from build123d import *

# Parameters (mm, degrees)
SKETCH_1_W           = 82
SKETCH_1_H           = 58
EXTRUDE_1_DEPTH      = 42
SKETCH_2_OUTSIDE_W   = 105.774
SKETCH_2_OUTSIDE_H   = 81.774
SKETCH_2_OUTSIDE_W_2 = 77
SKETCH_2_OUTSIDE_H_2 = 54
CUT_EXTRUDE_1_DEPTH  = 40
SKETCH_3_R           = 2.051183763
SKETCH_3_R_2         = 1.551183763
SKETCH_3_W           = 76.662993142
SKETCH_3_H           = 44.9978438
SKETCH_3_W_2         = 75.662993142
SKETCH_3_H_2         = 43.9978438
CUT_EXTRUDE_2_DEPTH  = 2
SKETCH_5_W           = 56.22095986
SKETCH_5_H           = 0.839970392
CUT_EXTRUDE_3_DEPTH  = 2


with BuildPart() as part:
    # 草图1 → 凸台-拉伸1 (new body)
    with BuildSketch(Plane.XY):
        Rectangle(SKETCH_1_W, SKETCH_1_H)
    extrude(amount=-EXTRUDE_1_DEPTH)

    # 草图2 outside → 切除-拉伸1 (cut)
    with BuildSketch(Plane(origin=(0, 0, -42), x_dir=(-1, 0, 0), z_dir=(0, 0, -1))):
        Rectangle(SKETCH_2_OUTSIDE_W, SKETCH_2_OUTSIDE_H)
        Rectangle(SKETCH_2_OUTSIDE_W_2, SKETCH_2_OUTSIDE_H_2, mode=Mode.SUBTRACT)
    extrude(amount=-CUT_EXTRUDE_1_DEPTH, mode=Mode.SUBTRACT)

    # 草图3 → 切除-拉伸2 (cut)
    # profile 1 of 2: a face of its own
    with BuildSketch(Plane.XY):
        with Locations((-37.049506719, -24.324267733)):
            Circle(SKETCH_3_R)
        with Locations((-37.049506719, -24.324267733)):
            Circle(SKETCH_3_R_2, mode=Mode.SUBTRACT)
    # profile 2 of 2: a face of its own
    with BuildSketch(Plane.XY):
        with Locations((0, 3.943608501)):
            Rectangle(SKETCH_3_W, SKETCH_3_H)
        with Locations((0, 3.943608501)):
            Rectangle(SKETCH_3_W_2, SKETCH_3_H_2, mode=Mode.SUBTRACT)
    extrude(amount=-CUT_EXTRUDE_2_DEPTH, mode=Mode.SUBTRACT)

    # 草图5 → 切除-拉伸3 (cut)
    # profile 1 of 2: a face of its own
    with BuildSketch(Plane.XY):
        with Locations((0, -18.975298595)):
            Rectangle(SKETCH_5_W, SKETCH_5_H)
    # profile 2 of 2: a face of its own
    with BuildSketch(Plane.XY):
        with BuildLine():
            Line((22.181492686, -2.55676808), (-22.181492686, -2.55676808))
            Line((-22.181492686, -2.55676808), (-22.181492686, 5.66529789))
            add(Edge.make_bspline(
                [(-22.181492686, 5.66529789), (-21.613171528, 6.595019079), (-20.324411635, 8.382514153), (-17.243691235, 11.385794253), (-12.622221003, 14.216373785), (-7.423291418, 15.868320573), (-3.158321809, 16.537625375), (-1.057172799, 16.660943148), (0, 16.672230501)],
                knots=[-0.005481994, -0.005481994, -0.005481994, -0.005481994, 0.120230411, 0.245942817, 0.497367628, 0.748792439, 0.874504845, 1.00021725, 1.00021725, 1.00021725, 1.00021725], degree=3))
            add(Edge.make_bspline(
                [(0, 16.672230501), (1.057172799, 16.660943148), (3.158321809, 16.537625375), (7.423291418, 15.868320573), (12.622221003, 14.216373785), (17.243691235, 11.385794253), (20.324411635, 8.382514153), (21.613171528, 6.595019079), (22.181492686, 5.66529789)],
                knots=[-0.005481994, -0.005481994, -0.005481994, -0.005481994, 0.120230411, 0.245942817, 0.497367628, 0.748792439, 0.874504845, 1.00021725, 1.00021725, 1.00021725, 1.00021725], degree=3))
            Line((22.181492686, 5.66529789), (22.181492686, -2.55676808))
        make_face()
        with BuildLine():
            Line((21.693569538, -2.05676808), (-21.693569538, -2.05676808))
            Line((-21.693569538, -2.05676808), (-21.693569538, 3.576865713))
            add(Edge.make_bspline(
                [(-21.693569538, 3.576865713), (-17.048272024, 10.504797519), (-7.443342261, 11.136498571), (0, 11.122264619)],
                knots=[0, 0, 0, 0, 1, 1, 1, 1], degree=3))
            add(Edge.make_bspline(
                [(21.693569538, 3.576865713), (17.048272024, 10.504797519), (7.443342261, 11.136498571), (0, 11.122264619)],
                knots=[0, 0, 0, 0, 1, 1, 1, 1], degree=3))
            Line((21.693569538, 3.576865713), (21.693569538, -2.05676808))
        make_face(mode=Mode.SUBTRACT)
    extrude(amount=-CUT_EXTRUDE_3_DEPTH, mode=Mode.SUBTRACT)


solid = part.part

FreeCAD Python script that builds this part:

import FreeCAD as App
import Part
import Sketcher

V = App.Vector

doc = App.newDocument("Part")
params = doc.addObject("Spreadsheet::Sheet", "Params")
for row, (alias, value) in enumerate([
    ("sketch1_width", "82 mm"),
    ("sketch1_height", "58 mm"),
    ("pad1_length", "42 mm"),
    ("sketch2_width", "77 mm"),
    ("sketch2_height", "54 mm"),
    ("pocket1_length", "40 mm"),
    ("pocket2_length", "2 mm"),
    ("pocket3_length", "2 mm"),
], start=1):
    params.set(f"A{row}", alias)
    params.set(f"B{row}", "=" + value)
    params.setAlias(f"B{row}", alias)

body = doc.addObject("PartDesign::Body", "Body")

# Sketch on XY plane
sketch1 = doc.addObject("Sketcher::SketchObject", "Sketch")
body.addObject(sketch1)
sketch1.AttachmentSupport = (doc.XY_Plane, [""])
sketch1.MapMode = "FlatFace"
sketch1.addGeometry(Part.LineSegment(V(-41, 29, 0), V(-41, -29, 0)), False)
sketch1.addGeometry(Part.LineSegment(V(-41, -29, 0), V(41, -29, 0)), False)
sketch1.addGeometry(Part.LineSegment(V(41, -29, 0), V(41, 29, 0)), False)
sketch1.addGeometry(Part.LineSegment(V(41, 29, 0), V(-41, 29, 0)), False)
sketch1.addConstraint(Sketcher.Constraint("Coincident", 0, 2, 1, 1))
sketch1.addConstraint(Sketcher.Constraint("Coincident", 1, 2, 2, 1))
sketch1.addConstraint(Sketcher.Constraint("Coincident", 2, 2, 3, 1))
sketch1.addConstraint(Sketcher.Constraint("Coincident", 3, 2, 0, 1))
sketch1.addConstraint(Sketcher.Constraint("Vertical", 0))
sketch1.addConstraint(Sketcher.Constraint("Horizontal", 1))
sketch1.addConstraint(Sketcher.Constraint("Vertical", 2))
sketch1.addConstraint(Sketcher.Constraint("Horizontal", 3))
sketch1.addConstraint(Sketcher.Constraint("Symmetric", 0, 2, 2, 2, -1, 1))
sketch1.addConstraint(Sketcher.Constraint("DistanceX", 1, 1, 1, 2, 82.0))
sketch1.addConstraint(Sketcher.Constraint("DistanceY", 0, 2, 0, 1, 58.0))
sketch1.setExpression("Constraints[9]", "Params.sketch1_width")
sketch1.setExpression("Constraints[10]", "Params.sketch1_height")
pad1 = doc.addObject("PartDesign::Pad", "Pad")
body.addObject(pad1)
pad1.Profile = sketch1
pad1.setExpression("Length", "Params.pad1_length")
pad1.Reversed = True

# Sketch on XY plane
sketch2 = doc.addObject("Sketcher::SketchObject", "Sketch001")
body.addObject(sketch2)
sketch2.AttachmentSupport = (doc.XY_Plane, [""])
sketch2.MapMode = "FlatFace"
sketch2.AttachmentOffset = App.Placement(V(0, 0, -42), App.Rotation())
sketch2.addGeometry(Part.LineSegment(V(52.887, 40.887, 0), V(52.887, -40.887, 0)), False)
sketch2.addGeometry(Part.LineSegment(V(52.887, -40.887, 0), V(-52.887, -40.887, 0)), False)
sketch2.addGeometry(Part.LineSegment(V(-52.887, -40.887, 0), V(-52.887, 40.887, 0)), False)
sketch2.addGeometry(Part.LineSegment(V(-52.887, 40.887, 0), V(52.887, 40.887, 0)), False)
sketch2.addGeometry(Part.LineSegment(V(-38.5, -27, 0), V(38.5, -27, 0)), False)
sketch2.addGeometry(Part.LineSegment(V(38.5, -27, 0), V(38.5, 27, 0)), False)
sketch2.addGeometry(Part.LineSegment(V(38.5, 27, 0), V(-38.5, 27, 0)), False)
sketch2.addGeometry(Part.LineSegment(V(-38.5, 27, 0), V(-38.5, -27, 0)), False)
sketch2.addConstraint(Sketcher.Constraint("Coincident", 0, 2, 1, 1))
sketch2.addConstraint(Sketcher.Constraint("Coincident", 1, 2, 2, 1))
sketch2.addConstraint(Sketcher.Constraint("Coincident", 2, 2, 3, 1))
sketch2.addConstraint(Sketcher.Constraint("Coincident", 3, 2, 0, 1))
sketch2.addConstraint(Sketcher.Constraint("Coincident", 4, 2, 5, 1))
sketch2.addConstraint(Sketcher.Constraint("Coincident", 5, 2, 6, 1))
sketch2.addConstraint(Sketcher.Constraint("Coincident", 6, 2, 7, 1))
sketch2.addConstraint(Sketcher.Constraint("Coincident", 7, 2, 4, 1))
sketch2.addConstraint(Sketcher.Constraint("Vertical", 0))
sketch2.addConstraint(Sketcher.Constraint("Horizontal", 1))
sketch2.addConstraint(Sketcher.Constraint("Vertical", 2))
sketch2.addConstraint(Sketcher.Constraint("Horizontal", 3))
sketch2.addConstraint(Sketcher.Constraint("Horizontal", 4))
sketch2.addConstraint(Sketcher.Constraint("Vertical", 5))
sketch2.addConstraint(Sketcher.Constraint("Horizontal", 6))
sketch2.addConstraint(Sketcher.Constraint("Vertical", 7))
sketch2.addConstraint(Sketcher.Constraint("Symmetric", 0, 2, 2, 2, -1, 1))
sketch2.addConstraint(Sketcher.Constraint("Symmetric", 4, 2, 6, 2, -1, 1))
sketch2.addConstraint(Sketcher.Constraint("DistanceX", 4, 1, 4, 2, 77.0))
sketch2.addConstraint(Sketcher.Constraint("DistanceY", 5, 1, 5, 2, 54.0))
sketch2.addConstraint(Sketcher.Constraint("DistanceX", 1, 2, 1, 1, 105.774))
sketch2.addConstraint(Sketcher.Constraint("DistanceY", 0, 2, 0, 1, 81.774))
sketch2.setExpression("Constraints[18]", "Params.sketch2_width")
sketch2.setExpression("Constraints[19]", "Params.sketch2_height")
pocket1 = doc.addObject("PartDesign::Pocket", "Pocket")
body.addObject(pocket1)
pocket1.Profile = sketch2
pocket1.setExpression("Length", "Params.pocket1_length")
pocket1.Reversed = True

# Sketch on XY plane
sketch3 = doc.addObject("Sketcher::SketchObject", "Sketch002")
body.addObject(sketch3)
sketch3.AttachmentSupport = (doc.XY_Plane, [""])
sketch3.MapMode = "FlatFace"
sketch3.addGeometry(Part.Circle(V(-37.049507, -24.324268, 0), V(0, 0, 1), 2.051184), False)
sketch3.addGeometry(Part.Circle(V(-37.049507, -24.324268, 0), V(0, 0, 1), 1.551184), False)
sketch3.addGeometry(Part.LineSegment(V(-38.331497, 26.44253, 0), V(-38.331497, -18.555313, 0)), False)
sketch3.addGeometry(Part.LineSegment(V(-38.331497, -18.555313, 0), V(38.331497, -18.555313, 0)), False)
sketch3.addGeometry(Part.LineSegment(V(38.331497, -18.555313, 0), V(38.331497, 26.44253, 0)), False)
sketch3.addGeometry(Part.LineSegment(V(38.331497, 26.44253, 0), V(-38.331497, 26.44253, 0)), False)
sketch3.addGeometry(Part.LineSegment(V(37.831497, -18.055313, 0), V(-37.831497, -18.055313, 0)), False)
sketch3.addGeometry(Part.LineSegment(V(-37.831497, -18.055313, 0), V(-37.831497, 25.94253, 0)), False)
sketch3.addGeometry(Part.LineSegment(V(-37.831497, 25.94253, 0), V(37.831497, 25.94253, 0)), False)
sketch3.addGeometry(Part.LineSegment(V(37.831497, 25.94253, 0), V(37.831497, -18.055313, 0)), False)
sketch3.addConstraint(Sketcher.Constraint("Coincident", 2, 2, 3, 1))
sketch3.addConstraint(Sketcher.Constraint("Coincident", 3, 2, 4, 1))
sketch3.addConstraint(Sketcher.Constraint("Coincident", 4, 2, 5, 1))
sketch3.addConstraint(Sketcher.Constraint("Coincident", 5, 2, 2, 1))
sketch3.addConstraint(Sketcher.Constraint("Coincident", 6, 2, 7, 1))
sketch3.addConstraint(Sketcher.Constraint("Coincident", 7, 2, 8, 1))
sketch3.addConstraint(Sketcher.Constraint("Coincident", 8, 2, 9, 1))
sketch3.addConstraint(Sketcher.Constraint("Coincident", 9, 2, 6, 1))
sketch3.addConstraint(Sketcher.Constraint("Vertical", 2))
sketch3.addConstraint(Sketcher.Constraint("Horizontal", 3))
sketch3.addConstraint(Sketcher.Constraint("Vertical", 4))
sketch3.addConstraint(Sketcher.Constraint("Horizontal", 5))
sketch3.addConstraint(Sketcher.Constraint("Horizontal", 6))
sketch3.addConstraint(Sketcher.Constraint("Vertical", 7))
sketch3.addConstraint(Sketcher.Constraint("Horizontal", 8))
sketch3.addConstraint(Sketcher.Constraint("Vertical", 9))
sketch3.addConstraint(Sketcher.Constraint("Coincident", 1, 3, 0, 3))
sketch3.addConstraint(Sketcher.Constraint("DistanceX", 2, 2, 6, 2, 0.5))
sketch3.addConstraint(Sketcher.Constraint("DistanceY", 2, 2, 6, 2, 0.5))
sketch3.addConstraint(Sketcher.Constraint("DistanceY", 7, 2, 5, 2, 0.5))
sketch3.addConstraint(Sketcher.Constraint("DistanceX", 8, 2, 4, 2, 0.5))
sketch3.addConstraint(Sketcher.Constraint("Diameter", 0, 4.102368))
sketch3.addConstraint(Sketcher.Constraint("Diameter", 1, 3.102368))
sketch3.addConstraint(Sketcher.Constraint("DistanceY", 0, 3, 4, 2, 50.766798))
sketch3.addConstraint(Sketcher.Constraint("DistanceX", 3, 1, 3, 2, 76.662993))
sketch3.addConstraint(Sketcher.Constraint("DistanceY", 2, 2, 2, 1, 44.997844))
sketch3.addConstraint(Sketcher.Constraint("DistanceY", -1, 1, 4, 2, 26.44253))
sketch3.addConstraint(Sketcher.Constraint("DistanceX", 2, 2, 0, 3, 1.28199))
sketch3.addConstraint(Sketcher.Constraint("DistanceX", 0, 3, -1, 1, 37.049507))
pocket2 = doc.addObject("PartDesign::Pocket", "Pocket001")
body.addObject(pocket2)
pocket2.Profile = sketch3
pocket2.setExpression("Length", "Params.pocket2_length")

# Sketch on XY plane
sketch4 = doc.addObject("Sketcher::SketchObject", "Sketch003")
body.addObject(sketch4)
sketch4.AttachmentSupport = (doc.XY_Plane, [""])
sketch4.MapMode = "FlatFace"
sketch4.addGeometry(Part.LineSegment(V(-28.11048, -18.555313, 0), V(-28.11048, -19.395284, 0)), False)
sketch4.addGeometry(Part.LineSegment(V(-28.11048, -19.395284, 0), V(28.11048, -19.395284, 0)), False)
sketch4.addGeometry(Part.LineSegment(V(28.11048, -19.395284, 0), V(28.11048, -18.555313, 0)), False)
sketch4.addGeometry(Part.LineSegment(V(28.11048, -18.555313, 0), V(-28.11048, -18.555313, 0)), False)
sketch4.addGeometry(Part.LineSegment(V(-22.181493, -2.556768, 0), V(22.181493, -2.556768, 0)), False)
sketch4.addGeometry(Part.LineSegment(V(22.181493, -2.556768, 0), V(22.181493, 5.665298, 0)), False)
sketch4.addGeometry(Part.BSplineCurve([V(0, 16.672231, 0), V(1.057173, 16.660943, 0), V(3.158322, 16.537625, 0), V(7.423291, 15.868321, 0), V(12.622221, 14.216374, 0), V(17.243691, 11.385794, 0), V(20.324412, 8.382514, 0), V(21.613172, 6.595019, 0), V(22.181493, 5.665298, 0)], [4, 1, 1, 1, 1, 1, 4], [-0.005481994, 0.120230411, 0.245942817, 0.497367628, 0.748792439, 0.874504845, 1.00021725], False, 3, [1, 1, 1, 1, 1, 1, 1, 1, 1], False), False)
sketch4.addGeometry(Part.BSplineCurve([V(-22.181493, 5.665298, 0), V(-21.613172, 6.595019, 0), V(-20.324412, 8.382514, 0), V(-17.243691, 11.385794, 0), V(-12.622221, 14.216374, 0), V(-7.423291, 15.868321, 0), V(-3.158322, 16.537625, 0), V(-1.057173, 16.660943, 0), V(0, 16.672231, 0)], [4, 1, 1, 1, 1, 1, 4], [-0.005481994, 0.120230411, 0.245942817, 0.497367628, 0.748792439, 0.874504845, 1.00021725], False, 3, [1, 1, 1, 1, 1, 1, 1, 1, 1], False), False)
sketch4.addGeometry(Part.LineSegment(V(-22.181493, 5.665298, 0), V(-22.181493, -2.556768, 0)), False)
sketch4.addGeometry(Part.LineSegment(V(21.69357, -2.056768, 0), V(-21.69357, -2.056768, 0)), False)
sketch4.addGeometry(Part.LineSegment(V(-21.69357, -2.056768, 0), V(-21.69357, 3.576866, 0)), False)
sketch4.addGeometry(Part.BSplineCurve([V(-21.69357, 3.576866, 0), V(-17.048272, 10.504798, 0), V(-7.443342, 11.136499, 0), V(0, 11.122265, 0)], [4, 4], [0, 1], False, 3, [1, 1, 1, 1], False), False)
sketch4.addGeometry(Part.BSplineCurve([V(21.69357, 3.576866, 0), V(17.048272, 10.504798, 0), V(7.443342, 11.136499, 0), V(0, 11.122265, 0)], [4, 4], [0, 1], False, 3, [1, 1, 1, 1], False), False)
sketch4.addGeometry(Part.LineSegment(V(21.69357, 3.576866, 0), V(21.69357, -2.056768, 0)), False)
sketch4.addConstraint(Sketcher.Constraint("Block", 6))
sketch4.addConstraint(Sketcher.Constraint("Block", 7))
sketch4.addConstraint(Sketcher.Constraint("Block", 11))
sketch4.addConstraint(Sketcher.Constraint("Block", 12))
sketch4.addConstraint(Sketcher.Constraint("Coincident", 0, 2, 1, 1))
sketch4.addConstraint(Sketcher.Constraint("Coincident", 1, 2, 2, 1))
sketch4.addConstraint(Sketcher.Constraint("Coincident", 2, 2, 3, 1))
sketch4.addConstraint(Sketcher.Constraint("Coincident", 3, 2, 0, 1))
sketch4.addConstraint(Sketcher.Constraint("Coincident", 4, 2, 5, 1))
sketch4.addConstraint(Sketcher.Constraint("Coincident", 5, 2, 6, 2))
sketch4.addConstraint(Sketcher.Constraint("Coincident", 7, 1, 8, 1))
sketch4.addConstraint(Sketcher.Constraint("Coincident", 8, 2, 4, 1))
sketch4.addConstraint(Sketcher.Constraint("Coincident", 9, 2, 10, 1))
sketch4.addConstraint(Sketcher.Constraint("Coincident", 10, 2, 11, 1))
sketch4.addConstraint(Sketcher.Constraint("Coincident", 12, 1, 13, 1))
sketch4.addConstraint(Sketcher.Constraint("Coincident", 13, 2, 9, 1))
sketch4.addConstraint(Sketcher.Constraint("Vertical", 0))
sketch4.addConstraint(Sketcher.Constraint("Horizontal", 1))
sketch4.addConstraint(Sketcher.Constraint("Vertical", 2))
sketch4.addConstraint(Sketcher.Constraint("Horizontal", 3))
sketch4.addConstraint(Sketcher.Constraint("Horizontal", 4))
sketch4.addConstraint(Sketcher.Constraint("Vertical", 5))
sketch4.addConstraint(Sketcher.Constraint("Vertical", 8))
sketch4.addConstraint(Sketcher.Constraint("Horizontal", 9))
sketch4.addConstraint(Sketcher.Constraint("Vertical", 10))
sketch4.addConstraint(Sketcher.Constraint("Vertical", 13))
sketch4.addConstraint(Sketcher.Constraint("DistanceY", 8, 2, 9, 2, 0.5))
sketch4.addConstraint(Sketcher.Constraint("DistanceX", 1, 1, 1, 2, 56.22096))
sketch4.addConstraint(Sketcher.Constraint("DistanceY", 0, 2, 0, 1, 0.83997))
sketch4.addConstraint(Sketcher.Constraint("DistanceY", 5, 1, 5, 2, 8.222066))
sketch4.addConstraint(Sketcher.Constraint("DistanceX", 0, 2, -1, 1, 28.11048))
sketch4.addConstraint(Sketcher.Constraint("DistanceY", 2, 2, 5, 2, 24.220611))
pocket3 = doc.addObject("PartDesign::Pocket", "Pocket002")
body.addObject(pocket3)
pocket3.Profile = sketch4
pocket3.setExpression("Length", "Params.pocket3_length")

doc.recompute()
